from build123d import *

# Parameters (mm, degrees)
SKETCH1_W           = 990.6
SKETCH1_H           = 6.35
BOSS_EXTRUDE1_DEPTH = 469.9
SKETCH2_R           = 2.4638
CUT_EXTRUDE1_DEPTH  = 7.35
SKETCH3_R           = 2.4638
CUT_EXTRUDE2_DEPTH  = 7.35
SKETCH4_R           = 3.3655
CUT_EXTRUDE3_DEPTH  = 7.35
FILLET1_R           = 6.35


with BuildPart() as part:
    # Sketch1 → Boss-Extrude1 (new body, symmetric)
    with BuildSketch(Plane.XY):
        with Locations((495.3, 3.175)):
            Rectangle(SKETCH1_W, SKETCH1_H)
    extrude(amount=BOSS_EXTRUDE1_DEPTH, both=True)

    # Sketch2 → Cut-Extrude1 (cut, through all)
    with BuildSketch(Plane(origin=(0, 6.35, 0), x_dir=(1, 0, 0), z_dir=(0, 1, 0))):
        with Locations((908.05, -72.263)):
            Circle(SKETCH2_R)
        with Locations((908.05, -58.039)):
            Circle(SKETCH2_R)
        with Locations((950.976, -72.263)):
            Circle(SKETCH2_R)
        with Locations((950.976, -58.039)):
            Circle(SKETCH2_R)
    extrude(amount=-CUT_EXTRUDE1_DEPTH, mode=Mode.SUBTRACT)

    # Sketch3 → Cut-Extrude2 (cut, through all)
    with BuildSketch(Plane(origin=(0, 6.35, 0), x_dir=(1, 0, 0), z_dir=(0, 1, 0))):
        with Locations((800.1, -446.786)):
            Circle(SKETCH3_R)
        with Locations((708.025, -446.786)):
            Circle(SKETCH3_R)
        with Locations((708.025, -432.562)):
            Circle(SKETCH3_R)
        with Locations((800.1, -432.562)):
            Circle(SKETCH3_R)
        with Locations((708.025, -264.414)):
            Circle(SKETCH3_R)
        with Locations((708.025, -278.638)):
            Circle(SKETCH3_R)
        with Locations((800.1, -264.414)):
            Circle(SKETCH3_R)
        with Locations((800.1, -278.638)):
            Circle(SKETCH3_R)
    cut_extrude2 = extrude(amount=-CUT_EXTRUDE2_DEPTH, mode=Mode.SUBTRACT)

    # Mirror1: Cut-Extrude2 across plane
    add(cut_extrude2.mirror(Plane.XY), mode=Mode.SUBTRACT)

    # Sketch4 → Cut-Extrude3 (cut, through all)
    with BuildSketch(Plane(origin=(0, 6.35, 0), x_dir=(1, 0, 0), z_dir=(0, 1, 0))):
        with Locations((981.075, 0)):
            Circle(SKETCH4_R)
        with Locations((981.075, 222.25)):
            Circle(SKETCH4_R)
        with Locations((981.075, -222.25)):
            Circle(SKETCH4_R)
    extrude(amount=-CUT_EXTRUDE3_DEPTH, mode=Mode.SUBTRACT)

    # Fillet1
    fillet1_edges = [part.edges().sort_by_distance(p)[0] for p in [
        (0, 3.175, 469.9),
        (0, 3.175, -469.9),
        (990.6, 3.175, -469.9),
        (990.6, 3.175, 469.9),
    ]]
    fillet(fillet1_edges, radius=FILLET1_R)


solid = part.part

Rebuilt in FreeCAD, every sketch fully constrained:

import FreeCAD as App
import Part
import Sketcher
from FreeCAD import Vector
Q = App.Units.Quantity


def edges_at(feature, points):
    """Names of the edges that pass closest to the given points."""
    edges = feature.Shape.Edges
    near = lambda p: min(range(len(edges)), key=lambda i: edges[i].distToShape(Part.Vertex(*p))[0])
    return sorted({f"Edge{near(p) + 1}" for p in points})


def add_polygon(sketch, points):
    """Adds a closed chain of lines whose ends are joined by coincident constraints."""
    first, n = sketch.GeometryCount, len(points)
    for a, b in zip(points, points[1:] + points[:1]):
        sketch.addGeometry(Part.LineSegment(App.Vector(*a, 0), App.Vector(*b, 0)), False)
    for i in range(n):
        sketch.addConstraint(Sketcher.Constraint("Coincident", first + i, 2, first + (i + 1) % n, 1))

doc = App.newDocument("Part")
params = doc.addObject("Spreadsheet::Sheet", "Params")
for row, (alias, value) in enumerate([
    ("sketch1_width", "39 in"),
    ("sketch1_height", "0.25 in"),
    ("pad1_length", "37 in"),
    ("sketch2_diameter", "0.194 in"),
    ("sketch3_diameter", "0.194 in"),
    ("sketch4_diameter", "0.265 in"),
    ("fillet_radius", "0.25 in"),
], start=1):
    params.set(f"A{row}", alias)
    params.set(f"B{row}", "=" + value)
    params.setAlias(f"B{row}", alias)

body = doc.addObject("PartDesign::Body", "Body")

# Sketch on XY plane
sketch1 = body.newObject("Sketcher::SketchObject", "Sketch")
sketch1.AttachmentSupport = (doc.getObject("XY_Plane"), [""])
sketch1.MapMode = "FlatFace"
add_polygon(sketch1, [(0, 6), (0, 0), (991, 0), (991, 6)])  # lines 0-3
sketch1.addConstraint([
    Sketcher.Constraint("Vertical", 0),
    Sketcher.Constraint("Horizontal", 1),
    Sketcher.Constraint("Vertical", 2),
    Sketcher.Constraint("Horizontal", 3),
    Sketcher.Constraint("Coincident", 0, 2, -1, 1),
    Sketcher.Constraint("DistanceX", 1, 1, 1, 2, Q("39 in")),
    Sketcher.Constraint("DistanceY", 0, 2, 0, 1, Q("0.25 in")),
])
sketch1.setExpression("Constraints[9]", "Params.sketch1_width")
sketch1.setExpression("Constraints[10]", "Params.sketch1_height")
pad1 = body.newObject("PartDesign::Pad", "Pad")
pad1.Profile = sketch1
pad1.setExpression("Length", "Params.pad1_length")
pad1.Midplane = True

# Sketch on XZ plane
sketch2 = body.newObject("Sketcher::SketchObject", "Sketch001")
sketch2.AttachmentSupport = (doc.getObject("XZ_Plane"), [""])
sketch2.MapMode = "FlatFace"
sketch2.AttachmentOffset = App.Placement(Vector(0, 0, -0.25 * 25.4), App.Rotation())
sketch2.addGeometry([
    Part.Circle(Vector(908, 72.3, 0), Vector(0, 0, 1), 2.5),
    Part.Circle(Vector(908, 58, 0), Vector(0, 0, 1), 2.5),
    Part.Circle(Vector(951, 72.3, 0), Vector(0, 0, 1), 2.5),
    Part.Circle(Vector(951, 58, 0), Vector(0, 0, 1), 2.5),
], False)
sketch2.addConstraint([
    Sketcher.Constraint("Equal", 0, 1),
    Sketcher.Constraint("Equal", 1, 2),
    Sketcher.Constraint("Equal", 2, 3),
    Sketcher.Constraint("Horizontal", 0, 3, 2, 3),
    Sketcher.Constraint("Horizontal", 1, 3, 3, 3),
    Sketcher.Constraint("Vertical", 0, 3, 1, 3),
    Sketcher.Constraint("Vertical", 2, 3, 3, 3),
    Sketcher.Constraint("Diameter", 0, Q("0.194 in")),
    Sketcher.Constraint("DistanceX", -1, 1, 0, 3, Q("35.75 in")),
    Sketcher.Constraint("DistanceX", -1, 1, 2, 3, Q("37.44 in")),
    Sketcher.Constraint("DistanceY", 1, 3, 0, 3, Q("0.56 in")),
    Sketcher.Constraint("DistanceY", -1, 1, 0, 3, Q("2.845 in")),
])
sketch2.setExpression("Constraints[7]", "Params.sketch2_diameter")
pocket1 = body.newObject("PartDesign::Pocket", "Pocket")
pocket1.Profile = sketch2
pocket1.Type = "ThroughAll"
pocket1.Reversed = True

# Sketch on XZ plane
sketch3 = body.newObject("Sketcher::SketchObject", "Sketch002")
sketch3.AttachmentSupport = (doc.getObject("XZ_Plane"), [""])
sketch3.MapMode = "FlatFace"
sketch3.AttachmentOffset = App.Placement(Vector(0, 0, -0.25 * 25.4), App.Rotation())
sketch3.addGeometry([
    Part.Circle(Vector(800.1, 446.8, 0), Vector(0, 0, 1), 2.5),  # 0
    Part.Circle(Vector(708, 446.8, 0), Vector(0, 0, 1), 2.5),  # 1
    Part.Circle(Vector(708, 432.6, 0), Vector(0, 0, 1), 2.5),  # 2
    Part.Circle(Vector(800.1, 432.6, 0), Vector(0, 0, 1), 2.5),  # 3
    Part.Circle(Vector(708, 264.4, 0), Vector(0, 0, 1), 2.5),  # 4
    Part.Circle(Vector(708, 278.6, 0), Vector(0, 0, 1), 2.5),  # 5
    Part.Circle(Vector(800.1, 264.4, 0), Vector(0, 0, 1), 2.5),  # 6
    Part.Circle(Vector(800.1, 278.6, 0), Vector(0, 0, 1), 2.5),  # 7
], False)
sketch3.addConstraint([
    Sketcher.Constraint("Equal", 0, 1),
    Sketcher.Constraint("Equal", 1, 2),
    Sketcher.Constraint("Equal", 2, 3),
    Sketcher.Constraint("Equal", 3, 4),
    Sketcher.Constraint("Equal", 4, 5),
    Sketcher.Constraint("Equal", 5, 6),
    Sketcher.Constraint("Equal", 6, 7),
    Sketcher.Constraint("Horizontal", 0, 3, 1, 3),
    Sketcher.Constraint("Horizontal", 2, 3, 3, 3),
    Sketcher.Constraint("Horizontal", 4, 3, 6, 3),
    Sketcher.Constraint("Horizontal", 5, 3, 7, 3),
    Sketcher.Constraint("Vertical", 1, 3, 2, 3),
    Sketcher.Constraint("Vertical", 0, 3, 3, 3),
    Sketcher.Constraint("Vertical", 2, 3, 4, 3),
    Sketcher.Constraint("Vertical", 4, 3, 5, 3),
    Sketcher.Constraint("Vertical", 3, 3, 6, 3),
    Sketcher.Constraint("Vertical", 6, 3, 7, 3),
    Sketcher.Constraint("Diameter", 0, Q("0.194 in")),
    Sketcher.Constraint("DistanceX", -1, 1, 0, 3, Q("31.5 in")),
    Sketcher.Constraint("DistanceY", -1, 1, 0, 3, Q("17.59 in")),
    Sketcher.Constraint("DistanceY", -1, 1, 2, 3, Q("17.03 in")),
    Sketcher.Constraint("DistanceY", -1, 1, 4, 3, Q("10.41 in")),
    Sketcher.Constraint("DistanceY", -1, 1, 5, 3, Q("10.97 in")),
    Sketcher.Constraint("DistanceX", -1, 1, 1, 3, Q("27.875 in")),
])
sketch3.setExpression("Constraints[17]", "Params.sketch3_diameter")
pocket2 = body.newObject("PartDesign::Pocket", "Pocket001")
pocket2.Profile = sketch3
pocket2.Type = "ThroughAll"
pocket2.Reversed = True
doc.recompute()

mirrored = body.newObject("PartDesign::Mirrored", "Mirrored")
mirrored.Originals = [pocket2]
mirrored.MirrorPlane = (doc.getObject("XY_Plane"), [""])
body.Tip = mirrored

# Sketch on XZ plane
sketch4 = body.newObject("Sketcher::SketchObject", "Sketch003")
sketch4.AttachmentSupport = (doc.getObject("XZ_Plane"), [""])
sketch4.MapMode = "FlatFace"
sketch4.AttachmentOffset = App.Placement(Vector(0, 0, -0.25 * 25.4), App.Rotation())
sketch4.addGeometry([
    Part.Circle(Vector(981.1, 0, 0), Vector(0, 0, 1), 3.4),
    Part.Circle(Vector(981.1, -222.2, 0), Vector(0, 0, 1), 3.4),
    Part.Circle(Vector(981.1, 222.2, 0), Vector(0, 0, 1), 3.4),
], False)
sketch4.addConstraint([
    Sketcher.Constraint("Equal", 0, 1),
    Sketcher.Constraint("Equal", 1, 2),
    Sketcher.Constraint("Symmetric", 1, 3, 2, 3, -1),
    Sketcher.Constraint("PointOnObject", 0, 3, -1),
    Sketcher.Constraint("Vertical", 0, 3, 1, 3),
    Sketcher.Constraint("Diameter", 0, Q("0.265 in")),
    Sketcher.Constraint("DistanceY", 1, 3, 2, 3, Q("17.5 in")),
    Sketcher.Constraint("DistanceX", -1, 1, 0, 3, Q("38.625 in")),
])
sketch4.setExpression("Constraints[5]", "Params.sketch4_diameter")
pocket3 = body.newObject("PartDesign::Pocket", "Pocket002")
pocket3.Profile = sketch4
pocket3.Type = "ThroughAll"
pocket3.Reversed = True
doc.recompute()

fillet = body.newObject("PartDesign::Fillet", "Fillet")
fillet.Base = (pocket3, edges_at(pocket3, [
    (0, 3.175, 469.9),
    (0, 3.175, -469.9),
    (990.6, 3.175, -469.9),
    (990.6, 3.175, 469.9),
]))
fillet.setExpression("Radius", "Params.fillet_radius")

doc.recompute()
